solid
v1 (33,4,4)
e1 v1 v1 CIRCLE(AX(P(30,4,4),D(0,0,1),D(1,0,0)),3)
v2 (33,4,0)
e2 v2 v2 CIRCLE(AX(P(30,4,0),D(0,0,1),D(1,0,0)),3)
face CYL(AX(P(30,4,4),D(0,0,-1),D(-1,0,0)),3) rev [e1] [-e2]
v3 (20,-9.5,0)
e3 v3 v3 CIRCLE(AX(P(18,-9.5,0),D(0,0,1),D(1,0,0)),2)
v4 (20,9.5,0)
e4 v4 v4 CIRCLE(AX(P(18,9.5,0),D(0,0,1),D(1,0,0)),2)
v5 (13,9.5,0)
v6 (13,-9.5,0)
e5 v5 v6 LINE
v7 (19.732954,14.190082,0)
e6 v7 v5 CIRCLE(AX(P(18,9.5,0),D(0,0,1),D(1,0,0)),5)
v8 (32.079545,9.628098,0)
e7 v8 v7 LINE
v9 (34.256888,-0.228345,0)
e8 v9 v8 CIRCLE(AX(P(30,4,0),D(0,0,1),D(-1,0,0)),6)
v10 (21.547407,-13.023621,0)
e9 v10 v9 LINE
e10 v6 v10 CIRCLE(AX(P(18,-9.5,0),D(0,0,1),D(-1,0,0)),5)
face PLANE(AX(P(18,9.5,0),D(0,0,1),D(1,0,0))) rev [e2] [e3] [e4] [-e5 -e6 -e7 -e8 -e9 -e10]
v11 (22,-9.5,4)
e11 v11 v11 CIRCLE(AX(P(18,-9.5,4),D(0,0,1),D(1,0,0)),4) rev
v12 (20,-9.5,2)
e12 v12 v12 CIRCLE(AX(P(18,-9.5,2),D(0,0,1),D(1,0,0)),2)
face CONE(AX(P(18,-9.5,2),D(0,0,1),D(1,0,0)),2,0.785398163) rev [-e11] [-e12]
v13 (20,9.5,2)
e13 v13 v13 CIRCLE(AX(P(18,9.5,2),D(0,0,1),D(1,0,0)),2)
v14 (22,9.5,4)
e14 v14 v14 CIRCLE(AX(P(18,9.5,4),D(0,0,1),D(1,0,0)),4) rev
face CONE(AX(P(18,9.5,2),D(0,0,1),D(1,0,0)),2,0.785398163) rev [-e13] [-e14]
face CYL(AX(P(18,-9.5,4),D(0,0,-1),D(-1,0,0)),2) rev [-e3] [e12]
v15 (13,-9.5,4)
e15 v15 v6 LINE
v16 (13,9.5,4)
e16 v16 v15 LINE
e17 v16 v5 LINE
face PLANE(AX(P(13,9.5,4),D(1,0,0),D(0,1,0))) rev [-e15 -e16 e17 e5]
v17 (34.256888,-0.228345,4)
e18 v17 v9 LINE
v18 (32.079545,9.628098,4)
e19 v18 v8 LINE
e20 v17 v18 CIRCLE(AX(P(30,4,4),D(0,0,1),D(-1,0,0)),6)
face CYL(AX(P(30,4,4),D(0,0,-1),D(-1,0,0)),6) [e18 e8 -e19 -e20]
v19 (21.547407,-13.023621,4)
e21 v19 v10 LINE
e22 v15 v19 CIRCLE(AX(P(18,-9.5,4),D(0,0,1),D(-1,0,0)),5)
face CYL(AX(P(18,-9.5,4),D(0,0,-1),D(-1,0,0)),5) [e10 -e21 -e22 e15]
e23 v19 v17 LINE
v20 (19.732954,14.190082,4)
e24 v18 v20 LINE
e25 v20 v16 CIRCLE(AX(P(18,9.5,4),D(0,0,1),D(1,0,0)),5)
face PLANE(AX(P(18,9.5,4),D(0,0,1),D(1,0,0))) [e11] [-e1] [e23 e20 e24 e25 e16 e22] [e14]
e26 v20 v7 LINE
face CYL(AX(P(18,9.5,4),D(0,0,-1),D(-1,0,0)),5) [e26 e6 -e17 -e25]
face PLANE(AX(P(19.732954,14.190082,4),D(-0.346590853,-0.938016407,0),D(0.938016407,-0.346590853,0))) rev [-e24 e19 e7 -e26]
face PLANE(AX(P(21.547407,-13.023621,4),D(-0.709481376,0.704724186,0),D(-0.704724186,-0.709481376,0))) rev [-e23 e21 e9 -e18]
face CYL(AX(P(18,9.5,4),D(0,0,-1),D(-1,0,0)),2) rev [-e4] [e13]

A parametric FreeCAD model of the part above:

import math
import FreeCAD as App
import Part
import Sketcher
Q = App.Units.Quantity


def edges_at(feature, points):
    """Names of the edges that pass closest to the given points."""
    edges = feature.Shape.Edges
    near = lambda p: min(range(len(edges)), key=lambda i: edges[i].distToShape(Part.Vertex(*p))[0])
    return sorted({f"Edge{near(p) + 1}" for p in points})

doc = App.newDocument("Part")
body = doc.addObject("PartDesign::Body", "Body")

# Sketch on XY plane
sketch1 = doc.addObject("Sketcher::SketchObject", "Sketch")
body.addObject(sketch1)
sketch1.AttachmentSupport = (doc.XY_Plane, [""])
sketch1.MapMode = "FlatFace"
sketch1.addGeometry(Part.LineSegment(App.Vector(13, 9.5, 0), App.Vector(13, -9.5, 0)), False)
sketch1.addGeometry(Part.ArcOfCircle(Part.Circle(App.Vector(18, -9.5, 0), App.Vector(0, 0, 1), 5), math.radians(180), math.radians(315)), False)
sketch1.addGeometry(Part.LineSegment(App.Vector(21.5, -13, 0), App.Vector(34.3, -0.2, 0)), False)
sketch1.addGeometry(Part.ArcOfCircle(Part.Circle(App.Vector(30, 4, 0), App.Vector(0, 0, 1), 6), math.radians(-45), math.radians(70)), False)
sketch1.addGeometry(Part.LineSegment(App.Vector(32.1, 9.6, 0), App.Vector(19.7, 14.2, 0)), False)
sketch1.addGeometry(Part.ArcOfCircle(Part.Circle(App.Vector(18, 9.5, 0), App.Vector(0, 0, 1), 5), math.radians(70), math.radians(180)), False)
sketch1.addGeometry(Part.Circle(App.Vector(18, -9.5, 0), App.Vector(0, 0, 1), 2), False)
sketch1.addGeometry(Part.Circle(App.Vector(18, 9.5, 0), App.Vector(0, 0, 1), 2), False)
sketch1.addGeometry(Part.Circle(App.Vector(30, 4, 0), App.Vector(0, 0, 1), 3), False)
sketch1.addConstraint(Sketcher.Constraint("Tangent", 0, 2, 1, 1))
sketch1.addConstraint(Sketcher.Constraint("Tangent", 1, 2, 2, 1))
sketch1.addConstraint(Sketcher.Constraint("Tangent", 2, 2, 3, 1))
sketch1.addConstraint(Sketcher.Constraint("Tangent", 3, 2, 4, 1))
sketch1.addConstraint(Sketcher.Constraint("Tangent", 4, 2, 5, 1))
sketch1.addConstraint(Sketcher.Constraint("Tangent", 5, 2, 0, 1))
sketch1.addConstraint(Sketcher.Constraint("Vertical", 0))
sketch1.addConstraint(Sketcher.Constraint("Coincident", 6, 3, 1, 3))
sketch1.addConstraint(Sketcher.Constraint("Coincident", 7, 3, 5, 3))
sketch1.addConstraint(Sketcher.Constraint("Coincident", 8, 3, 3, 3))
sketch1.addConstraint(Sketcher.Constraint("Equal", 1, 5))
sketch1.addConstraint(Sketcher.Constraint("Equal", 6, 7))
sketch1.addConstraint(Sketcher.Constraint("Diameter", 6, Q("4 mm")))
sketch1.addConstraint(Sketcher.Constraint("Diameter", 8, Q("6 mm")))
sketch1.addConstraint(Sketcher.Constraint("Radius", 1, Q("5 mm")))
sketch1.addConstraint(Sketcher.Constraint("Radius", 3, Q("6 mm")))
sketch1.addConstraint(Sketcher.Constraint("DistanceY", 0, 2, 0, 1, Q("19 mm")))
sketch1.addConstraint(Sketcher.Constraint("DistanceX", -1, 1, 1, 3, Q("18 mm")))
sketch1.addConstraint(Sketcher.Constraint("DistanceX", -1, 1, 3, 3, Q("30 mm")))
sketch1.addConstraint(Sketcher.Constraint("DistanceY", -1, 1, 3, 3, Q("4 mm")))
sketch1.addConstraint(Sketcher.Constraint("DistanceY", 1, 3, -1, 1, Q("9.5 mm")))
pad1 = doc.addObject("PartDesign::Pad", "Pad")
body.addObject(pad1)
pad1.Profile = sketch1
pad1.Length = 4
doc.recompute()

chamfer = doc.addObject("PartDesign::Chamfer", "Chamfer")
body.addObject(chamfer)
chamfer.Base = (pad1, edges_at(pad1, [(16, 9.5, 4), (16, -9.5, 4)]))
chamfer.Size = 2

doc.recompute()
